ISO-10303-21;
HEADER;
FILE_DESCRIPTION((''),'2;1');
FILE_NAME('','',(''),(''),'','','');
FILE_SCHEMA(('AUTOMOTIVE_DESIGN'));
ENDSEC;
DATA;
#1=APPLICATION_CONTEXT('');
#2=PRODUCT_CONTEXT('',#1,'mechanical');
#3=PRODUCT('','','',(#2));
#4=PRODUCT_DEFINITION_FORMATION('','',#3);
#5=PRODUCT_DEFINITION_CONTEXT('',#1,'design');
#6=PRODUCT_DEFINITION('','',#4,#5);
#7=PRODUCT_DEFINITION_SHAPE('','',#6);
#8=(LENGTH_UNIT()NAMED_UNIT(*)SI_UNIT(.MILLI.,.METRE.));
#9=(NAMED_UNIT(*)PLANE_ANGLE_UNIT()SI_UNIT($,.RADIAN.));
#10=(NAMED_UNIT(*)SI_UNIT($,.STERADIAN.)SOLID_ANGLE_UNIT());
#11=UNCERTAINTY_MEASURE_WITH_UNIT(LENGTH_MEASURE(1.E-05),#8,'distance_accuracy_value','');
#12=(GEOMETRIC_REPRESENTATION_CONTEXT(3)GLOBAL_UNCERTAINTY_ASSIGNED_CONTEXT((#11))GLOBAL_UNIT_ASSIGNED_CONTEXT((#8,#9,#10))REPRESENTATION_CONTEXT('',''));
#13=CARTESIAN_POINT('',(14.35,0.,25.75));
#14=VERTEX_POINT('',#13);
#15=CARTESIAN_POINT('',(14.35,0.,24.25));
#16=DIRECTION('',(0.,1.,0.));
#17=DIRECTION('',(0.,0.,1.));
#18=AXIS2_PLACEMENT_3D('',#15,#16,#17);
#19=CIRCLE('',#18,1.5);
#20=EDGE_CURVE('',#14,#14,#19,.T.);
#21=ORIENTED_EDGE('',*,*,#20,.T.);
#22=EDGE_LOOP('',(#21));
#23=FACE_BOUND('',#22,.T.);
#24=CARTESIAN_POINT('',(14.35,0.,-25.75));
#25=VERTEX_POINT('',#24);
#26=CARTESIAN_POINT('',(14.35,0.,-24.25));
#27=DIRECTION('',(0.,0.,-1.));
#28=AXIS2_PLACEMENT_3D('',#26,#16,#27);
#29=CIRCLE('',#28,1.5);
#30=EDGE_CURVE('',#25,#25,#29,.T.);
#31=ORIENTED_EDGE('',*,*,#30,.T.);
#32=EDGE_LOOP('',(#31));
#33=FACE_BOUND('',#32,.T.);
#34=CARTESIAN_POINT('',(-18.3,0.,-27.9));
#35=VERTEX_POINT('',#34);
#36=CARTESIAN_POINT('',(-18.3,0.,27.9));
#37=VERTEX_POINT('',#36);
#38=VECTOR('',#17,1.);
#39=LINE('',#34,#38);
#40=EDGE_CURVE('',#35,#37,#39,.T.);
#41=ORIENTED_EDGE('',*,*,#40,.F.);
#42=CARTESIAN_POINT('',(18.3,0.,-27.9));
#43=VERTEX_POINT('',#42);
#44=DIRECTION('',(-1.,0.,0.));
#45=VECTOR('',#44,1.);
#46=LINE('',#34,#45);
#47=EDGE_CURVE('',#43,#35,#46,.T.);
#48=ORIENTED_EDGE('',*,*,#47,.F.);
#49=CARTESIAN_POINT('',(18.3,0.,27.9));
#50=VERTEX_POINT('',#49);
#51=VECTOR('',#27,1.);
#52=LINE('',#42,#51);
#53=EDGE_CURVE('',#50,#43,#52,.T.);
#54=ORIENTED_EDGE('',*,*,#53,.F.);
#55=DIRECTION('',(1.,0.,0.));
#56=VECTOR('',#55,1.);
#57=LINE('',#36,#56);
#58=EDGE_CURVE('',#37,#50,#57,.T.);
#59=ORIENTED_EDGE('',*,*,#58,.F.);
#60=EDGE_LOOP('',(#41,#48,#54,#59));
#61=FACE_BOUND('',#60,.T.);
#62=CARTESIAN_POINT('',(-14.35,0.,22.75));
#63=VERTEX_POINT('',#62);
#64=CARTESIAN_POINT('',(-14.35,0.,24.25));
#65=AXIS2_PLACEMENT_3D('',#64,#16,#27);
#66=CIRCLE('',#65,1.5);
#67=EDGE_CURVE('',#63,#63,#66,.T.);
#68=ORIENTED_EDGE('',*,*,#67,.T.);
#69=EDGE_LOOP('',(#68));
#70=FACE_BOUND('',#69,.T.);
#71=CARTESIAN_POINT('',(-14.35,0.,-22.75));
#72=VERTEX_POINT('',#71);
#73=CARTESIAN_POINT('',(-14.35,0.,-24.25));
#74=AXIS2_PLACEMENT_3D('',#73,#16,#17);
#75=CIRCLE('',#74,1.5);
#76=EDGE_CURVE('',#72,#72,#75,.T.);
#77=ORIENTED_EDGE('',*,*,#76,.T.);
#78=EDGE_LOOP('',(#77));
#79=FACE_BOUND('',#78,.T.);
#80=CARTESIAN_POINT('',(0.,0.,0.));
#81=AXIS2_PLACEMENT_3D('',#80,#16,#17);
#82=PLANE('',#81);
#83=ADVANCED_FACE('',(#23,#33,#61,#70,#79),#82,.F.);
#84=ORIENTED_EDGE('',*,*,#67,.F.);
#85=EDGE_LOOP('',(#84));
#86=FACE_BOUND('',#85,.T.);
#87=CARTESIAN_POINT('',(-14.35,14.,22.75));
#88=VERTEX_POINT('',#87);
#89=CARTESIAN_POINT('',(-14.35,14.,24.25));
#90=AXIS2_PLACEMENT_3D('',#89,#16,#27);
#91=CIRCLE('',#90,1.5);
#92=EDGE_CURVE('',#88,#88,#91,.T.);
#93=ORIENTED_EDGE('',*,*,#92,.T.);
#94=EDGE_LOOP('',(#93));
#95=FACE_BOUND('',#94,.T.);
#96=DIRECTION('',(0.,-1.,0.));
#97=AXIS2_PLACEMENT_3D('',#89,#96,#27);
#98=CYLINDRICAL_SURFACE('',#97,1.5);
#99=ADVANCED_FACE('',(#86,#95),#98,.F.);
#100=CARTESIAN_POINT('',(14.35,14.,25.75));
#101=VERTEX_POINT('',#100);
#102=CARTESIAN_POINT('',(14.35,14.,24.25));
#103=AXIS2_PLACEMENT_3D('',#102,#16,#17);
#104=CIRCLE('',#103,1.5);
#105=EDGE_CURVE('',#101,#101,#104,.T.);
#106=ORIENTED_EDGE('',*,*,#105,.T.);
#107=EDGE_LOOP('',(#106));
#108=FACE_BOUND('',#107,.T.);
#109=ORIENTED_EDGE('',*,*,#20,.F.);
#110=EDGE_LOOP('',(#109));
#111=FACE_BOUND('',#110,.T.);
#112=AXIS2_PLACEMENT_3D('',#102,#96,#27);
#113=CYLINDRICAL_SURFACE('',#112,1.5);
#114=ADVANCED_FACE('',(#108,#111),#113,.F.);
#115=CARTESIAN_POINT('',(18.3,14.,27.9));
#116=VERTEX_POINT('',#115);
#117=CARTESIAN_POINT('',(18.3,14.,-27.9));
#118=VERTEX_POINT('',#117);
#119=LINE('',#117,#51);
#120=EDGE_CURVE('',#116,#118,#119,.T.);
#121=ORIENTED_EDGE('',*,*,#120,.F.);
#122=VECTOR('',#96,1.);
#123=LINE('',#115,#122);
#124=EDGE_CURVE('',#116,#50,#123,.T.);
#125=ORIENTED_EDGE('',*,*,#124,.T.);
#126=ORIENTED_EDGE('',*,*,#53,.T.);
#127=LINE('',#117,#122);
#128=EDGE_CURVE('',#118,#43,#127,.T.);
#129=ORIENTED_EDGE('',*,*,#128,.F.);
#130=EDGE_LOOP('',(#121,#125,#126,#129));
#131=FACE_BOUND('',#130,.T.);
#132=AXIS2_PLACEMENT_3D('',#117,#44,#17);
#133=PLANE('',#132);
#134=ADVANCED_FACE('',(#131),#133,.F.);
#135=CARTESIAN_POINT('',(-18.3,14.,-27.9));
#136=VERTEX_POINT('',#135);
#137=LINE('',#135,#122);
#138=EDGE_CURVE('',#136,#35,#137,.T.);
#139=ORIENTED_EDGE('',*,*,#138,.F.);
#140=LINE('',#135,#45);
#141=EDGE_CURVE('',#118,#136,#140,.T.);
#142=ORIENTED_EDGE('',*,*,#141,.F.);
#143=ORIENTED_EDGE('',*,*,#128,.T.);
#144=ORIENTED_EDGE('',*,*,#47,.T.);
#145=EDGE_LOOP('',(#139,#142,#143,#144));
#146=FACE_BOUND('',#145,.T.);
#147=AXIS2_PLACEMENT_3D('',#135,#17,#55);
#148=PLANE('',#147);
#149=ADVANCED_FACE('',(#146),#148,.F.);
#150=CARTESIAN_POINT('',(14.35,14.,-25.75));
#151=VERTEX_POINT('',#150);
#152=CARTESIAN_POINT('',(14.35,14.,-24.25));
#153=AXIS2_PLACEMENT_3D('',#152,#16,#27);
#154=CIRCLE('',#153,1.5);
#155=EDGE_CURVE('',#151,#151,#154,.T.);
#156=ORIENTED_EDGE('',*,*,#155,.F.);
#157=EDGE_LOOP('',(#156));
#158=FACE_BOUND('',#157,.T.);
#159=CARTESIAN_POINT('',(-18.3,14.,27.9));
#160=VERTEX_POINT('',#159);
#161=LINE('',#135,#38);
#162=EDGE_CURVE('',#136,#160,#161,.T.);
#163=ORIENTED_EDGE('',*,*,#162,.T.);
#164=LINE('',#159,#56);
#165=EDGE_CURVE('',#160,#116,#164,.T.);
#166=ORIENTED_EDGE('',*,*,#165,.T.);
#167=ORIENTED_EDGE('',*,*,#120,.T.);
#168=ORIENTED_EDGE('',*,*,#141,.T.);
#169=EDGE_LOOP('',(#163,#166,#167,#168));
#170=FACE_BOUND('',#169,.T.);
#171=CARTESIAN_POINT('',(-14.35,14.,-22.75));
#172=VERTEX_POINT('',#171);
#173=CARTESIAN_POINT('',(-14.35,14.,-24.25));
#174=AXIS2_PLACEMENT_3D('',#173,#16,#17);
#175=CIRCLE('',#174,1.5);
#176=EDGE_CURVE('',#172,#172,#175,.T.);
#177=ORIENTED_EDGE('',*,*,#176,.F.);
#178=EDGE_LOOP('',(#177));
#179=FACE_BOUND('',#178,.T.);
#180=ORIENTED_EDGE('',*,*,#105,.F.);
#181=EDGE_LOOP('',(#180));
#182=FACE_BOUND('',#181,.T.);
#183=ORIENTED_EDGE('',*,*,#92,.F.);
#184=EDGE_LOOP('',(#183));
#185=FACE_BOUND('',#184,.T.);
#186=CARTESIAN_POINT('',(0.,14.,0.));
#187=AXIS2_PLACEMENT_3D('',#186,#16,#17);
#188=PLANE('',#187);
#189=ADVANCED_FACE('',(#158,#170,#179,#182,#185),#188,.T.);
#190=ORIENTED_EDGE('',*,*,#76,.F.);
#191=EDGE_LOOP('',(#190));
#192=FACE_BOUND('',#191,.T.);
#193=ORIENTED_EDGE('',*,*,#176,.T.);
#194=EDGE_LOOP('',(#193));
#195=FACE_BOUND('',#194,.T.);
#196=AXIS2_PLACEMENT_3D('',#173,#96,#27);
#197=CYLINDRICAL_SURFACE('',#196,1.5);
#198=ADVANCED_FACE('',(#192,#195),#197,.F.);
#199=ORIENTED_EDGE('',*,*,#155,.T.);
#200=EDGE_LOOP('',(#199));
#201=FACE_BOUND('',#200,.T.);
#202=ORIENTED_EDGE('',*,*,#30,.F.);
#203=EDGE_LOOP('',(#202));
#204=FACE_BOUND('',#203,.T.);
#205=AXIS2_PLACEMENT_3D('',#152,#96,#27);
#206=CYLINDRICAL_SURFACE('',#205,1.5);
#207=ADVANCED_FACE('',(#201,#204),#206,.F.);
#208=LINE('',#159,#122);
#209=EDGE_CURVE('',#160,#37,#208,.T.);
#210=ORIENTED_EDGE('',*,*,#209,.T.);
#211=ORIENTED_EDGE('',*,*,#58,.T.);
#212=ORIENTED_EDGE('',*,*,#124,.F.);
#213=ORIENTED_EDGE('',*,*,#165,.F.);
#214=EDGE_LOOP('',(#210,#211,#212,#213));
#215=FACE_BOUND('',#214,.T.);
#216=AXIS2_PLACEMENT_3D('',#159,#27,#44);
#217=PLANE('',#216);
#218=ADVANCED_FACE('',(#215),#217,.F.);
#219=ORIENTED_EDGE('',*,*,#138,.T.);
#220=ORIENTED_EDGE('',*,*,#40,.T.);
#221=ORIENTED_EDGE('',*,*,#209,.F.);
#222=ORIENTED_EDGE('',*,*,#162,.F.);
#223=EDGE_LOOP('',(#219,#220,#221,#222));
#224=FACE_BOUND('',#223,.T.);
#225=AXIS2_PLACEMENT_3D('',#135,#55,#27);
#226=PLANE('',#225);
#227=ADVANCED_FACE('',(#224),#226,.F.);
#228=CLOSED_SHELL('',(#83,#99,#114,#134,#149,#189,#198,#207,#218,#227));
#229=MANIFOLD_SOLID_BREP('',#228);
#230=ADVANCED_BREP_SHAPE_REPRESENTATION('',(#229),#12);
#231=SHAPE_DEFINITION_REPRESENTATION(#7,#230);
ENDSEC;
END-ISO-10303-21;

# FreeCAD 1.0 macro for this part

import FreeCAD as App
import Part
import Sketcher
from FreeCAD import Vector

doc = App.newDocument("Part")
body = doc.addObject("PartDesign::Body", "Body")

# Sketch on XZ plane
sketch1 = body.newObject("Sketcher::SketchObject", "Sketch")
sketch1.AttachmentSupport = (doc.getObject("XZ_Plane"), [""])
sketch1.MapMode = "FlatFace"
sketch1.addGeometry([
    Part.LineSegment(Vector(-18, -28, 0), Vector(-18, 28, 0)),
    Part.LineSegment(Vector(-18, 28, 0), Vector(18, 28, 0)),
    Part.LineSegment(Vector(18, 28, 0), Vector(18, -28, 0)),
    Part.LineSegment(Vector(18, -28, 0), Vector(-18, -28, 0)),
], False)
sketch1.addConstraint([
    Sketcher.Constraint("Coincident", 0, 2, 1, 1),
    Sketcher.Constraint("Coincident", 1, 2, 2, 1),
    Sketcher.Constraint("Coincident", 2, 2, 3, 1),
    Sketcher.Constraint("Coincident", 3, 2, 0, 1),
    Sketcher.Constraint("Vertical", 0),
    Sketcher.Constraint("Horizontal", 1),
    Sketcher.Constraint("Vertical", 2),
    Sketcher.Constraint("Horizontal", 3),
    Sketcher.Constraint("Symmetric", 0, 2, 2, 2, -1, 1),
    Sketcher.Constraint("DistanceX", 1, 1, 1, 2, 36.6),
    Sketcher.Constraint("DistanceY", 0, 1, 0, 2, 55.8),
])
pad1 = body.newObject("PartDesign::Pad", "Pad")
pad1.Profile = sketch1
pad1.Length = 14
pad1.Reversed = True

# Sketch on XZ plane
sketch2 = body.newObject("Sketcher::SketchObject", "Sketch001")
sketch2.AttachmentSupport = (doc.getObject("XZ_Plane"), [""])
sketch2.MapMode = "FlatFace"
sketch2.addGeometry([
    Part.Circle(Vector(-14.3, -24.2, 0), Vector(0, 0, 1), 1.5),
    Part.Circle(Vector(-14.3, 24.2, 0), Vector(0, 0, 1), 1.5),
    Part.Circle(Vector(14.3, 24.2, 0), Vector(0, 0, 1), 1.5),
    Part.Circle(Vector(14.3, -24.2, 0), Vector(0, 0, 1), 1.5),
], False)
sketch2.addConstraint([
    Sketcher.Constraint("Equal", 0, 1),
    Sketcher.Constraint("Equal", 1, 2),
    Sketcher.Constraint("Equal", 2, 3),
    Sketcher.Constraint("Symmetric", 0, 3, 2, 3, -1, 1),
    Sketcher.Constraint("Symmetric", 1, 3, 3, 3, -1, 1),
    Sketcher.Constraint("Symmetric", 1, 3, 2, 3, -2),
    Sketcher.Constraint("Diameter", 0, 3.0),
    Sketcher.Constraint("DistanceY", 0, 3, 1, 3, 48.5),
    Sketcher.Constraint("DistanceX", 1, 3, 2, 3, 28.7),
])
pocket1 = body.newObject("PartDesign::Pocket", "Pocket")
pocket1.Profile = sketch2
pocket1.Type = "ThroughAll"

doc.recompute()
